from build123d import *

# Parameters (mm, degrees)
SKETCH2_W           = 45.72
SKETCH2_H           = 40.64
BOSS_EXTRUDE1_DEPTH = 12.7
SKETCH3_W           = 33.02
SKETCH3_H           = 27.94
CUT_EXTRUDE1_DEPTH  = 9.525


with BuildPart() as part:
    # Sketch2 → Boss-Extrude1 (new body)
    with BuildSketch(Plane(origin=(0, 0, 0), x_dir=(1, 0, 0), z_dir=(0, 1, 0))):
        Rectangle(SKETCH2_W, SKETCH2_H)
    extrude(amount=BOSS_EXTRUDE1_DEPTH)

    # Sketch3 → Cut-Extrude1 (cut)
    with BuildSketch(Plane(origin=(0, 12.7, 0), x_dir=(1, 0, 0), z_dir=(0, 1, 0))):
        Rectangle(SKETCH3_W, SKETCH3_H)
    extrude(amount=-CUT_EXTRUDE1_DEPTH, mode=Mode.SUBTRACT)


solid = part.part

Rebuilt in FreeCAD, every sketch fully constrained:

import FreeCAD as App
import Part
import Sketcher
Q = App.Units.Quantity

doc = App.newDocument("Part")
body = doc.addObject("PartDesign::Body", "Body")

# Sketch on XZ plane
sketch1 = body.newObject("Sketcher::SketchObject", "Sketch")
sketch1.AttachmentSupport = (doc.getObject("XZ_Plane"), [""])
sketch1.MapMode = "FlatFace"
sketch1.addGeometry([
    Part.LineSegment(App.Vector(-23, -20, 0), App.Vector(-23, 20, 0)),
    Part.LineSegment(App.Vector(-23, 20, 0), App.Vector(23, 20, 0)),
    Part.LineSegment(App.Vector(23, 20, 0), App.Vector(23, -20, 0)),
    Part.LineSegment(App.Vector(23, -20, 0), App.Vector(-23, -20, 0)),
], False)
sketch1.addConstraint([
    Sketcher.Constraint("Coincident", 0, 2, 1, 1),
    Sketcher.Constraint("Coincident", 1, 2, 2, 1),
    Sketcher.Constraint("Coincident", 2, 2, 3, 1),
    Sketcher.Constraint("Coincident", 3, 2, 0, 1),
    Sketcher.Constraint("Vertical", 0),
    Sketcher.Constraint("Horizontal", 1),
    Sketcher.Constraint("Vertical", 2),
    Sketcher.Constraint("Horizontal", 3),
    Sketcher.Constraint("Symmetric", 0, 2, 2, 2, -1, 1),
    Sketcher.Constraint("DistanceX", 1, 1, 1, 2, Q("1.8 in")),
    Sketcher.Constraint("DistanceY", 0, 1, 0, 2, Q("1.6 in")),
])
pad1 = body.newObject("PartDesign::Pad", "Pad")
pad1.Profile = sketch1
pad1.Length = Q("0.5 in")
pad1.Reversed = True

# Sketch on XZ plane
sketch2 = body.newObject("Sketcher::SketchObject", "Sketch001")
sketch2.AttachmentSupport = (doc.getObject("XZ_Plane"), [""])
sketch2.MapMode = "FlatFace"
sketch2.AttachmentOffset = App.Placement(App.Vector(0, 0, -0.5 * 25.4), App.Rotation())
sketch2.addGeometry([
    Part.LineSegment(App.Vector(-17, -14, 0), App.Vector(-17, 14, 0)),
    Part.LineSegment(App.Vector(-17, 14, 0), App.Vector(17, 14, 0)),
    Part.LineSegment(App.Vector(17, 14, 0), App.Vector(17, -14, 0)),
    Part.LineSegment(App.Vector(17, -14, 0), App.Vector(-17, -14, 0)),
], False)
sketch2.addConstraint([
    Sketcher.Constraint("Coincident", 0, 2, 1, 1),
    Sketcher.Constraint("Coincident", 1, 2, 2, 1),
    Sketcher.Constraint("Coincident", 2, 2, 3, 1),
    Sketcher.Constraint("Coincident", 3, 2, 0, 1),
    Sketcher.Constraint("Vertical", 0),
    Sketcher.Constraint("Horizontal", 1),
    Sketcher.Constraint("Vertical", 2),
    Sketcher.Constraint("Horizontal", 3),
    Sketcher.Constraint("Symmetric", 0, 2, 2, 2, -1, 1),
    Sketcher.Constraint("DistanceX", 1, 1, 1, 2, Q("1.3 in")),
    Sketcher.Constraint("DistanceY", 0, 1, 0, 2, Q("1.1 in")),
])
pocket1 = body.newObject("PartDesign::Pocket", "Pocket")
pocket1.Profile = sketch2
pocket1.Length = Q("0.375 in")
pocket1.Reversed = True

doc.recompute()
